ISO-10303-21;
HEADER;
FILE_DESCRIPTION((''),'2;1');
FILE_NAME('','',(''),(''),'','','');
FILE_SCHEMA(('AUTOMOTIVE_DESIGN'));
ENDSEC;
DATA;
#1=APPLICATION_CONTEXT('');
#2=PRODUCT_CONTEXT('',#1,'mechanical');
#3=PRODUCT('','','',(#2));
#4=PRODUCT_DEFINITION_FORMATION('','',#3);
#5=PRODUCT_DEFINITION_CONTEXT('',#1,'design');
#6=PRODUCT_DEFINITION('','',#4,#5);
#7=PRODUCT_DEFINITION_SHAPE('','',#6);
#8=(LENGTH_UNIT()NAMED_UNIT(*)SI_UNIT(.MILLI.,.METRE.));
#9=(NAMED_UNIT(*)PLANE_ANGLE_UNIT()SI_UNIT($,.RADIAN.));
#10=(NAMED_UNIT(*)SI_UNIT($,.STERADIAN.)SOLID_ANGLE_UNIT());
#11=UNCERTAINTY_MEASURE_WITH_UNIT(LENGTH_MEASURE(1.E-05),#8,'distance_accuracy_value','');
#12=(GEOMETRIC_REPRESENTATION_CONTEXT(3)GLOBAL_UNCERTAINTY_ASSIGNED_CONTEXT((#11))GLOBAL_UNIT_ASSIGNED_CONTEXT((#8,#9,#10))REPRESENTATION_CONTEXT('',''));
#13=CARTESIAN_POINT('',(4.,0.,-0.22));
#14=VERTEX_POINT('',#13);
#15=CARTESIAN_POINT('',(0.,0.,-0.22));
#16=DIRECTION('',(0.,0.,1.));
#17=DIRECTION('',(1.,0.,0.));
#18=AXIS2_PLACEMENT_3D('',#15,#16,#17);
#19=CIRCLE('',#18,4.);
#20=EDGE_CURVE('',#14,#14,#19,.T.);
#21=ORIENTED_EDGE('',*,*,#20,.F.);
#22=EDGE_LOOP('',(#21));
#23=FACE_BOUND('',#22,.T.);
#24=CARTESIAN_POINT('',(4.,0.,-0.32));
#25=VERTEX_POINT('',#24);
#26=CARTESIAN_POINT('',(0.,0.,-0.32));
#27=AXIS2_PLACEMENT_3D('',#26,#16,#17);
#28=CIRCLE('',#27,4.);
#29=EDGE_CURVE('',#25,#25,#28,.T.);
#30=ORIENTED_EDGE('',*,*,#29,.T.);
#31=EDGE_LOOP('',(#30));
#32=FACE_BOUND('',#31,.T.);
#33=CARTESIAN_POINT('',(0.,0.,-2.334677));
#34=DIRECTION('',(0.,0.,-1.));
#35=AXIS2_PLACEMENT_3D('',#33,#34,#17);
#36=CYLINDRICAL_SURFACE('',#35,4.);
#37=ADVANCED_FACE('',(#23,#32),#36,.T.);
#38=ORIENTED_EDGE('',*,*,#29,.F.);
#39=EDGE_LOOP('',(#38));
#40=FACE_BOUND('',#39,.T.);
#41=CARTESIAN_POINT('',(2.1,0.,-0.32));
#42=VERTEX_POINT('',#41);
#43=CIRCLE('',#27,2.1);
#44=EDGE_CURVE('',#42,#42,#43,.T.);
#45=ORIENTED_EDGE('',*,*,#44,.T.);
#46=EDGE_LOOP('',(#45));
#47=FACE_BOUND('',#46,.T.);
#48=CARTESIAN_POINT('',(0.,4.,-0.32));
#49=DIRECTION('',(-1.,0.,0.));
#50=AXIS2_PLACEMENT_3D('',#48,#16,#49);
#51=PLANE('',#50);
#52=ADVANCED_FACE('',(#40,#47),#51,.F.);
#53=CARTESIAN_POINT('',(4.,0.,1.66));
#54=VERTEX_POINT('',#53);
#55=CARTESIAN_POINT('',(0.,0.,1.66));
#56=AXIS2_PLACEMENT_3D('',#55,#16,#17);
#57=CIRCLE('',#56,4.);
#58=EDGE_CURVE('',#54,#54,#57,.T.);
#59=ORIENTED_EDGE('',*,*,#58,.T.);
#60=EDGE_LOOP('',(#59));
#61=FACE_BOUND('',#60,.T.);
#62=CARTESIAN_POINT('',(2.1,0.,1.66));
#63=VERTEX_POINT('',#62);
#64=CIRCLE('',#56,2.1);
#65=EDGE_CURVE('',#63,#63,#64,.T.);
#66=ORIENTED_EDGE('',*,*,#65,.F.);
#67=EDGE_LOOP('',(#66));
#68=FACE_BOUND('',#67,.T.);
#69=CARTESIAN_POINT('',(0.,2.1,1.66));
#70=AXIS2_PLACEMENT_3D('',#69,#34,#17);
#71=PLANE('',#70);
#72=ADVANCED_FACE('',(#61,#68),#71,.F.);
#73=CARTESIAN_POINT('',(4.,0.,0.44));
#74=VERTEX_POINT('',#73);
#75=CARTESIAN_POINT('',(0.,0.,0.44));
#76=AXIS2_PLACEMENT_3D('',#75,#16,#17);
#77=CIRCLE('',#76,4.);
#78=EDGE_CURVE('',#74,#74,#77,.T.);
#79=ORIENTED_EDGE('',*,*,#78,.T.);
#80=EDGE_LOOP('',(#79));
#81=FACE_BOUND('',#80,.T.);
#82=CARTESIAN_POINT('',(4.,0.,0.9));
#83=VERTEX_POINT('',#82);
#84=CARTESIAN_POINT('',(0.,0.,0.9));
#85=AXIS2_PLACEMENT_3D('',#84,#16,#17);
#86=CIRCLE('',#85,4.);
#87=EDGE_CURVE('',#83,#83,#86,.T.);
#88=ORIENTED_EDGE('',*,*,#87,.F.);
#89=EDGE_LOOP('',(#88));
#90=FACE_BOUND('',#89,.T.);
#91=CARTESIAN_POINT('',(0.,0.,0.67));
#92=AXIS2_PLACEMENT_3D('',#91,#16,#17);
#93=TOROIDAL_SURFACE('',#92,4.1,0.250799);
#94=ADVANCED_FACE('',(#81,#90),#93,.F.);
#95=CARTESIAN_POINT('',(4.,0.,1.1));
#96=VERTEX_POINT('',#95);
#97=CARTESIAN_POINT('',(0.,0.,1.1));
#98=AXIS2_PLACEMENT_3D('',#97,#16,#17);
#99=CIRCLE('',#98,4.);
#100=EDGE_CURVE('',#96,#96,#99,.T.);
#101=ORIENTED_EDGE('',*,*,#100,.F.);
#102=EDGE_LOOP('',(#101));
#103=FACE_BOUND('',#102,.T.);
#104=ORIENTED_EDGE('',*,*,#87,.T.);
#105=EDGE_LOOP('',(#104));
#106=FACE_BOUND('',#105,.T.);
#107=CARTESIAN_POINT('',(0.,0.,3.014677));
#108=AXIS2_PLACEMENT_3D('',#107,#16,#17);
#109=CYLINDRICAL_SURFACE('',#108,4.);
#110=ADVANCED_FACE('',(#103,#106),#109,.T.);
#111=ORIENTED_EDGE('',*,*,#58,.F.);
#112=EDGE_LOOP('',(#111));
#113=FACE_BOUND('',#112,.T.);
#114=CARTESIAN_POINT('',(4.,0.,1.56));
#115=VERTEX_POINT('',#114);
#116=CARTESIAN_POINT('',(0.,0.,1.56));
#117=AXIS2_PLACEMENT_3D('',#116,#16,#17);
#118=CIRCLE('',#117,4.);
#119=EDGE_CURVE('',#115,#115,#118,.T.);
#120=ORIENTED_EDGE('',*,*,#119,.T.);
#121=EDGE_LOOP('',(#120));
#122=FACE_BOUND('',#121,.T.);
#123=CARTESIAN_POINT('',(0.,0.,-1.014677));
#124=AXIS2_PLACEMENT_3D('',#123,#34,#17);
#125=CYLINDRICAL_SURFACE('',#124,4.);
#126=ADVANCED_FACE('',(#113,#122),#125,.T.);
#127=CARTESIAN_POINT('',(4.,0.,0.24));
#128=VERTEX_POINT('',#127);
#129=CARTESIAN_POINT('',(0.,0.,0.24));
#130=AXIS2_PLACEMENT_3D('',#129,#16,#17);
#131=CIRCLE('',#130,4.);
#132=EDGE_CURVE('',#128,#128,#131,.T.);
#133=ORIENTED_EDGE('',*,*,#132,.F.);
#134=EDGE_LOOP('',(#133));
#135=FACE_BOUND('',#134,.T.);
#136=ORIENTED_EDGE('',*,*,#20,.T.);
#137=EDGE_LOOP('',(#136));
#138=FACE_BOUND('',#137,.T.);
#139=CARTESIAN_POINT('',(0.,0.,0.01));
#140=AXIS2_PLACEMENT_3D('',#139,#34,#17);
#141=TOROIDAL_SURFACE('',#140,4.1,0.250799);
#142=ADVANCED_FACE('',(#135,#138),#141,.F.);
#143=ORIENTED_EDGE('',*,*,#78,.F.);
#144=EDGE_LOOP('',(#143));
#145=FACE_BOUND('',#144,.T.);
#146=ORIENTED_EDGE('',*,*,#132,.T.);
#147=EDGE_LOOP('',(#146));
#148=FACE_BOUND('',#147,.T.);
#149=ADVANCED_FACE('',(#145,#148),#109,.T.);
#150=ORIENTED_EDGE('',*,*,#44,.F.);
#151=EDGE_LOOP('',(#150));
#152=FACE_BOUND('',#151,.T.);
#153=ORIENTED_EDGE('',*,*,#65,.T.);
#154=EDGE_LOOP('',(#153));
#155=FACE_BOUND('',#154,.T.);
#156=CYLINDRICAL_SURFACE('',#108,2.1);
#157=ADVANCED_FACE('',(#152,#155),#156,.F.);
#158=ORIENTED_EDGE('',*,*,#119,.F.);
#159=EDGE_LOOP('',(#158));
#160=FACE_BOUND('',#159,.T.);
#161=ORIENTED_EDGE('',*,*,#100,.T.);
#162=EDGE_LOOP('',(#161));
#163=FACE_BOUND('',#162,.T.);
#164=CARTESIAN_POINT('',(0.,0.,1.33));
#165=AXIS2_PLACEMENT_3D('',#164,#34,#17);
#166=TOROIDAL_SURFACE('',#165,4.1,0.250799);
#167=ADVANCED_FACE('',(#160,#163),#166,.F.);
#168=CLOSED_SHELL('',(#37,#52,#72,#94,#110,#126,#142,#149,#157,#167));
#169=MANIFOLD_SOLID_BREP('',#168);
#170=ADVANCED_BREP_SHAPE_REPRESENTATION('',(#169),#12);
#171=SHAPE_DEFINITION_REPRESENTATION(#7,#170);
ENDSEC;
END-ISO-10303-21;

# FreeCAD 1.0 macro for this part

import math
import FreeCAD as App
import Part
import Sketcher
from FreeCAD import Vector

doc = App.newDocument("Part")
params = doc.addObject("Spreadsheet::Sheet", "Params")
for row, (alias, value) in enumerate([
    ("sketch1_width", "1.9 mm"),
    ("sketch1_height", "0.1 mm"),
    ("sketch1_height2", "0.66 mm"),
    ("revolution_angle", "360 deg"),
], start=1):
    params.set(f"A{row}", alias)
    params.set(f"B{row}", "=" + value)
    params.setAlias(f"B{row}", alias)

body = doc.addObject("PartDesign::Body", "Body")

# Sketch on YZ plane
sketch1 = body.newObject("Sketcher::SketchObject", "Sketch")
sketch1.AttachmentSupport = (doc.getObject("YZ_Plane"), [""])
sketch1.MapMode = "FlatFace"
sketch1.addGeometry(Part.LineSegment(Vector(2.1, 0.34, 0), Vector(4, 0.34, 0)), False)
sketch1.addGeometry(Part.LineSegment(Vector(4, 0.34, 0), Vector(4, 0.44, 0)), False)
sketch1.addGeometry(Part.ArcOfCircle(Part.Circle(Vector(4.1, 0.67, 0), Vector(0, 0, 1), 0.25), math.radians(113), math.radians(247)), False)
sketch1.addGeometry(Part.LineSegment(Vector(4, 0.9, 0), Vector(4, 1, 0)), False)
sketch1.addGeometry(Part.LineSegment(Vector(4, 1, 0), Vector(2.1, 1, 0)), False)
sketch1.addGeometry(Part.LineSegment(Vector(2.1, 1, 0), Vector(2.1, 0.34, 0)), False)
sketch1.addConstraint(Sketcher.Constraint("Coincident", 0, 2, 1, 1))
sketch1.addConstraint(Sketcher.Constraint("Coincident", 1, 2, 2, 2))
sketch1.addConstraint(Sketcher.Constraint("Coincident", 2, 1, 3, 1))
sketch1.addConstraint(Sketcher.Constraint("Coincident", 3, 2, 4, 1))
sketch1.addConstraint(Sketcher.Constraint("Coincident", 4, 2, 5, 1))
sketch1.addConstraint(Sketcher.Constraint("Coincident", 5, 2, 0, 1))
sketch1.addConstraint(Sketcher.Constraint("Horizontal", 0))
sketch1.addConstraint(Sketcher.Constraint("Vertical", 1))
sketch1.addConstraint(Sketcher.Constraint("Vertical", 3))
sketch1.addConstraint(Sketcher.Constraint("Horizontal", 4))
sketch1.addConstraint(Sketcher.Constraint("Vertical", 5))
sketch1.addConstraint(Sketcher.Constraint("Vertical", 1, 2, 2, 1))
sketch1.addConstraint(Sketcher.Constraint("Equal", 1, 3))
sketch1.addConstraint(Sketcher.Constraint("DistanceX", 0, 1, 0, 2, 1.9))
sketch1.addConstraint(Sketcher.Constraint("DistanceY", 1, 1, 1, 2, 0.1))
sketch1.addConstraint(Sketcher.Constraint("DistanceX", -1, 1, 0, 2, 4.0))
sketch1.addConstraint(Sketcher.Constraint("DistanceY", -1, 1, 3, 2, 1.0))
sketch1.addConstraint(Sketcher.Constraint("DistanceX", 4, 2, 2, 3, 2.0))
sketch1.addConstraint(Sketcher.Constraint("DistanceY", 5, 2, 5, 1, 0.66))
sketch1.setExpression("Constraints[13]", "Params.sketch1_width")
sketch1.setExpression("Constraints[14]", "Params.sketch1_height")
sketch1.setExpression("Constraints[18]", "Params.sketch1_height2")
revolution = body.newObject("PartDesign::Revolution", "Revolution")
revolution.Profile = sketch1
revolution.ReferenceAxis = (sketch1, ["V_Axis"])
revolution.setExpression("Angle", "Params.revolution_angle")
doc.recompute()

datumplane = body.newObject("PartDesign::Plane", "DatumPlane")
datumplane.AttachmentSupport = (doc.getObject("XY_Plane"), [""])
datumplane.MapMode = "FlatFace"
datumplane.AttachmentOffset = App.Placement(Vector(0, 0, 0.34), App.Rotation())
mirrored = body.newObject("PartDesign::Mirrored", "Mirrored")
mirrored.Originals = [revolution]
mirrored.MirrorPlane = (datumplane, [""])
body.Tip = mirrored
doc.recompute()

datumplane2 = body.newObject("PartDesign::Plane", "DatumPlane001")
datumplane2.AttachmentSupport = (doc.getObject("XY_Plane"), [""])
datumplane2.MapMode = "FlatFace"
datumplane2.AttachmentOffset = App.Placement(Vector(0, 0, 1), App.Rotation())
mirrored2 = body.newObject("PartDesign::Mirrored", "Mirrored001")
mirrored2.Originals = [revolution]
mirrored2.MirrorPlane = (datumplane2, [""])
body.Tip = mirrored2

doc.recompute()
